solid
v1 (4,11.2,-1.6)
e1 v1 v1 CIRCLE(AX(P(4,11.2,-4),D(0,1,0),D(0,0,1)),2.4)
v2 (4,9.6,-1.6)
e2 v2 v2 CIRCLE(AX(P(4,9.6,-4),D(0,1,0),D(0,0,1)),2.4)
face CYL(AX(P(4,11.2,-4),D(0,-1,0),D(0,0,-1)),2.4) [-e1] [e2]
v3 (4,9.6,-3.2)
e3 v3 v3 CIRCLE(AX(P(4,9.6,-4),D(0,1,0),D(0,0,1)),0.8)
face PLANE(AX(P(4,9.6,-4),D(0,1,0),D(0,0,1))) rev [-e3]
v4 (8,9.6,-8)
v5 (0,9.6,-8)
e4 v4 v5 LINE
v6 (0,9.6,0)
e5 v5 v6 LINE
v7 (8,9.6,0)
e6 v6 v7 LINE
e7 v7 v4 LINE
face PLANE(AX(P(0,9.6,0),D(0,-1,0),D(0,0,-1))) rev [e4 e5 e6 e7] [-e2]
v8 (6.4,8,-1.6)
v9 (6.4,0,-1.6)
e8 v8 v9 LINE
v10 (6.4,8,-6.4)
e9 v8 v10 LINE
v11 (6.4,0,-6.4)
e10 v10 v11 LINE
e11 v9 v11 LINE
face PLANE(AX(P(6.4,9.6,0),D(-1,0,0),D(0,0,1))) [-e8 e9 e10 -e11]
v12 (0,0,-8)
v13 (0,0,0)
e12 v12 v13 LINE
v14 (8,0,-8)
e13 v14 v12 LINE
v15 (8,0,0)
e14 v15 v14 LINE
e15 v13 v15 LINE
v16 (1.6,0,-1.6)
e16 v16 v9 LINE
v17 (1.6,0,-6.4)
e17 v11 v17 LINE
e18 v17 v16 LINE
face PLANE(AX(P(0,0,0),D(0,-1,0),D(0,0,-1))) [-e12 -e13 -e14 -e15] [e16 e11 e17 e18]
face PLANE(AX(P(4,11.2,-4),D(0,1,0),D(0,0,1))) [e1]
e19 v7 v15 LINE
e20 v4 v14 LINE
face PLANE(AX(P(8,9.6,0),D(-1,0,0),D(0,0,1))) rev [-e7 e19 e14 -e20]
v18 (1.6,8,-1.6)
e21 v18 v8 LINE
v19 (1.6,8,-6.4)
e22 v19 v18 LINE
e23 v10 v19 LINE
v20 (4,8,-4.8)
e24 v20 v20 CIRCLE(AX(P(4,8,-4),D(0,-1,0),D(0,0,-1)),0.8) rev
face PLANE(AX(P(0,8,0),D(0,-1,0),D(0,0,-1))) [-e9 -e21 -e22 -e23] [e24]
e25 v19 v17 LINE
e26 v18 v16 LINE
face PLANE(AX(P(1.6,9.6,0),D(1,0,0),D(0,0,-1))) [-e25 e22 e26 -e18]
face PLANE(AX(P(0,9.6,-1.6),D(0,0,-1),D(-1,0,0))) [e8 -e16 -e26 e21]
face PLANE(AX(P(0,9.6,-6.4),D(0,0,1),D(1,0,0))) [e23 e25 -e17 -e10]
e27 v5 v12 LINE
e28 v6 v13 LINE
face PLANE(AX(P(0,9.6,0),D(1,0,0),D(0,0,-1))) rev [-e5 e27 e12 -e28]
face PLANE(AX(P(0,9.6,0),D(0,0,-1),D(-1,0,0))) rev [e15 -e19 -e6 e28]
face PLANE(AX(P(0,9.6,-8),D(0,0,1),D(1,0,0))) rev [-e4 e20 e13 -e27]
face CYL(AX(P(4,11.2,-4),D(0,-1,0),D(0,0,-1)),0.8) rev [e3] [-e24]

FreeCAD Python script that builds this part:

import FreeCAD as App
import Part
import Sketcher
from FreeCAD import Vector
Q = App.Units.Quantity


def faces_at(feature, points):
    """Names of the faces that lie closest to the given points."""
    faces = feature.Shape.Faces
    near = lambda p: min(range(len(faces)), key=lambda i: faces[i].distToShape(Part.Vertex(*p))[0])
    return sorted({f"Face{near(p) + 1}" for p in points})


def add_polygon(sketch, points):
    """Adds a closed chain of lines whose ends are joined by coincident constraints."""
    first, n = sketch.GeometryCount, len(points)
    for a, b in zip(points, points[1:] + points[:1]):
        sketch.addGeometry(Part.LineSegment(App.Vector(*a, 0), App.Vector(*b, 0)), False)
    for i in range(n):
        sketch.addConstraint(Sketcher.Constraint("Coincident", first + i, 2, first + (i + 1) % n, 1))

doc = App.newDocument("Part")
body = doc.addObject("PartDesign::Body", "Body")

# Sketch on XZ plane
sketch1 = body.newObject("Sketcher::SketchObject", "Sketch")
sketch1.AttachmentSupport = (doc.getObject("XZ_Plane"), [""])
sketch1.MapMode = "FlatFace"
add_polygon(sketch1, [(0, -8), (0, 0), (8, 0), (8, -8)])  # lines 0-3
sketch1.addConstraint([
    Sketcher.Constraint("Vertical", 0),
    Sketcher.Constraint("Horizontal", 1),
    Sketcher.Constraint("Vertical", 2),
    Sketcher.Constraint("Horizontal", 3),
    Sketcher.Constraint("Coincident", 0, 2, -1, 1),
    Sketcher.Constraint("Equal", 3, 0),
    Sketcher.Constraint("DistanceX", 1, 1, 1, 2, Q("8 mm")),
])
pad1 = body.newObject("PartDesign::Pad", "Pad")
pad1.Profile = sketch1
pad1.Length = 9.6
pad1.Reversed = True

# Sketch on XZ plane
sketch2 = body.newObject("Sketcher::SketchObject", "Sketch001")
sketch2.AttachmentSupport = (doc.getObject("XZ_Plane"), [""])
sketch2.MapMode = "FlatFace"
sketch2.AttachmentOffset = App.Placement(Vector(0, 0, -9.6), App.Rotation())
sketch2.addGeometry(Part.Circle(Vector(4, -4, 0), Vector(0, 0, 1), 2.4), False)
sketch2.addConstraint([
    Sketcher.Constraint("Diameter", 0, Q("4.8 mm")),
    Sketcher.Constraint("DistanceX", -1, 1, 0, 3, Q("4 mm")),
    Sketcher.Constraint("DistanceY", 0, 3, -1, 1, Q("4 mm")),
])
pad2 = body.newObject("PartDesign::Pad", "Pad001")
pad2.Profile = sketch2
pad2.Length = 1.6
pad2.Reversed = True
doc.recompute()

thickness = body.newObject("PartDesign::Thickness", "Thickness")
thickness.Base = (pad2, faces_at(pad2, [(4, 0, -4)]))
thickness.Value = 1.6
thickness.Reversed = True
thickness.Join = "Intersection"

doc.recompute()
